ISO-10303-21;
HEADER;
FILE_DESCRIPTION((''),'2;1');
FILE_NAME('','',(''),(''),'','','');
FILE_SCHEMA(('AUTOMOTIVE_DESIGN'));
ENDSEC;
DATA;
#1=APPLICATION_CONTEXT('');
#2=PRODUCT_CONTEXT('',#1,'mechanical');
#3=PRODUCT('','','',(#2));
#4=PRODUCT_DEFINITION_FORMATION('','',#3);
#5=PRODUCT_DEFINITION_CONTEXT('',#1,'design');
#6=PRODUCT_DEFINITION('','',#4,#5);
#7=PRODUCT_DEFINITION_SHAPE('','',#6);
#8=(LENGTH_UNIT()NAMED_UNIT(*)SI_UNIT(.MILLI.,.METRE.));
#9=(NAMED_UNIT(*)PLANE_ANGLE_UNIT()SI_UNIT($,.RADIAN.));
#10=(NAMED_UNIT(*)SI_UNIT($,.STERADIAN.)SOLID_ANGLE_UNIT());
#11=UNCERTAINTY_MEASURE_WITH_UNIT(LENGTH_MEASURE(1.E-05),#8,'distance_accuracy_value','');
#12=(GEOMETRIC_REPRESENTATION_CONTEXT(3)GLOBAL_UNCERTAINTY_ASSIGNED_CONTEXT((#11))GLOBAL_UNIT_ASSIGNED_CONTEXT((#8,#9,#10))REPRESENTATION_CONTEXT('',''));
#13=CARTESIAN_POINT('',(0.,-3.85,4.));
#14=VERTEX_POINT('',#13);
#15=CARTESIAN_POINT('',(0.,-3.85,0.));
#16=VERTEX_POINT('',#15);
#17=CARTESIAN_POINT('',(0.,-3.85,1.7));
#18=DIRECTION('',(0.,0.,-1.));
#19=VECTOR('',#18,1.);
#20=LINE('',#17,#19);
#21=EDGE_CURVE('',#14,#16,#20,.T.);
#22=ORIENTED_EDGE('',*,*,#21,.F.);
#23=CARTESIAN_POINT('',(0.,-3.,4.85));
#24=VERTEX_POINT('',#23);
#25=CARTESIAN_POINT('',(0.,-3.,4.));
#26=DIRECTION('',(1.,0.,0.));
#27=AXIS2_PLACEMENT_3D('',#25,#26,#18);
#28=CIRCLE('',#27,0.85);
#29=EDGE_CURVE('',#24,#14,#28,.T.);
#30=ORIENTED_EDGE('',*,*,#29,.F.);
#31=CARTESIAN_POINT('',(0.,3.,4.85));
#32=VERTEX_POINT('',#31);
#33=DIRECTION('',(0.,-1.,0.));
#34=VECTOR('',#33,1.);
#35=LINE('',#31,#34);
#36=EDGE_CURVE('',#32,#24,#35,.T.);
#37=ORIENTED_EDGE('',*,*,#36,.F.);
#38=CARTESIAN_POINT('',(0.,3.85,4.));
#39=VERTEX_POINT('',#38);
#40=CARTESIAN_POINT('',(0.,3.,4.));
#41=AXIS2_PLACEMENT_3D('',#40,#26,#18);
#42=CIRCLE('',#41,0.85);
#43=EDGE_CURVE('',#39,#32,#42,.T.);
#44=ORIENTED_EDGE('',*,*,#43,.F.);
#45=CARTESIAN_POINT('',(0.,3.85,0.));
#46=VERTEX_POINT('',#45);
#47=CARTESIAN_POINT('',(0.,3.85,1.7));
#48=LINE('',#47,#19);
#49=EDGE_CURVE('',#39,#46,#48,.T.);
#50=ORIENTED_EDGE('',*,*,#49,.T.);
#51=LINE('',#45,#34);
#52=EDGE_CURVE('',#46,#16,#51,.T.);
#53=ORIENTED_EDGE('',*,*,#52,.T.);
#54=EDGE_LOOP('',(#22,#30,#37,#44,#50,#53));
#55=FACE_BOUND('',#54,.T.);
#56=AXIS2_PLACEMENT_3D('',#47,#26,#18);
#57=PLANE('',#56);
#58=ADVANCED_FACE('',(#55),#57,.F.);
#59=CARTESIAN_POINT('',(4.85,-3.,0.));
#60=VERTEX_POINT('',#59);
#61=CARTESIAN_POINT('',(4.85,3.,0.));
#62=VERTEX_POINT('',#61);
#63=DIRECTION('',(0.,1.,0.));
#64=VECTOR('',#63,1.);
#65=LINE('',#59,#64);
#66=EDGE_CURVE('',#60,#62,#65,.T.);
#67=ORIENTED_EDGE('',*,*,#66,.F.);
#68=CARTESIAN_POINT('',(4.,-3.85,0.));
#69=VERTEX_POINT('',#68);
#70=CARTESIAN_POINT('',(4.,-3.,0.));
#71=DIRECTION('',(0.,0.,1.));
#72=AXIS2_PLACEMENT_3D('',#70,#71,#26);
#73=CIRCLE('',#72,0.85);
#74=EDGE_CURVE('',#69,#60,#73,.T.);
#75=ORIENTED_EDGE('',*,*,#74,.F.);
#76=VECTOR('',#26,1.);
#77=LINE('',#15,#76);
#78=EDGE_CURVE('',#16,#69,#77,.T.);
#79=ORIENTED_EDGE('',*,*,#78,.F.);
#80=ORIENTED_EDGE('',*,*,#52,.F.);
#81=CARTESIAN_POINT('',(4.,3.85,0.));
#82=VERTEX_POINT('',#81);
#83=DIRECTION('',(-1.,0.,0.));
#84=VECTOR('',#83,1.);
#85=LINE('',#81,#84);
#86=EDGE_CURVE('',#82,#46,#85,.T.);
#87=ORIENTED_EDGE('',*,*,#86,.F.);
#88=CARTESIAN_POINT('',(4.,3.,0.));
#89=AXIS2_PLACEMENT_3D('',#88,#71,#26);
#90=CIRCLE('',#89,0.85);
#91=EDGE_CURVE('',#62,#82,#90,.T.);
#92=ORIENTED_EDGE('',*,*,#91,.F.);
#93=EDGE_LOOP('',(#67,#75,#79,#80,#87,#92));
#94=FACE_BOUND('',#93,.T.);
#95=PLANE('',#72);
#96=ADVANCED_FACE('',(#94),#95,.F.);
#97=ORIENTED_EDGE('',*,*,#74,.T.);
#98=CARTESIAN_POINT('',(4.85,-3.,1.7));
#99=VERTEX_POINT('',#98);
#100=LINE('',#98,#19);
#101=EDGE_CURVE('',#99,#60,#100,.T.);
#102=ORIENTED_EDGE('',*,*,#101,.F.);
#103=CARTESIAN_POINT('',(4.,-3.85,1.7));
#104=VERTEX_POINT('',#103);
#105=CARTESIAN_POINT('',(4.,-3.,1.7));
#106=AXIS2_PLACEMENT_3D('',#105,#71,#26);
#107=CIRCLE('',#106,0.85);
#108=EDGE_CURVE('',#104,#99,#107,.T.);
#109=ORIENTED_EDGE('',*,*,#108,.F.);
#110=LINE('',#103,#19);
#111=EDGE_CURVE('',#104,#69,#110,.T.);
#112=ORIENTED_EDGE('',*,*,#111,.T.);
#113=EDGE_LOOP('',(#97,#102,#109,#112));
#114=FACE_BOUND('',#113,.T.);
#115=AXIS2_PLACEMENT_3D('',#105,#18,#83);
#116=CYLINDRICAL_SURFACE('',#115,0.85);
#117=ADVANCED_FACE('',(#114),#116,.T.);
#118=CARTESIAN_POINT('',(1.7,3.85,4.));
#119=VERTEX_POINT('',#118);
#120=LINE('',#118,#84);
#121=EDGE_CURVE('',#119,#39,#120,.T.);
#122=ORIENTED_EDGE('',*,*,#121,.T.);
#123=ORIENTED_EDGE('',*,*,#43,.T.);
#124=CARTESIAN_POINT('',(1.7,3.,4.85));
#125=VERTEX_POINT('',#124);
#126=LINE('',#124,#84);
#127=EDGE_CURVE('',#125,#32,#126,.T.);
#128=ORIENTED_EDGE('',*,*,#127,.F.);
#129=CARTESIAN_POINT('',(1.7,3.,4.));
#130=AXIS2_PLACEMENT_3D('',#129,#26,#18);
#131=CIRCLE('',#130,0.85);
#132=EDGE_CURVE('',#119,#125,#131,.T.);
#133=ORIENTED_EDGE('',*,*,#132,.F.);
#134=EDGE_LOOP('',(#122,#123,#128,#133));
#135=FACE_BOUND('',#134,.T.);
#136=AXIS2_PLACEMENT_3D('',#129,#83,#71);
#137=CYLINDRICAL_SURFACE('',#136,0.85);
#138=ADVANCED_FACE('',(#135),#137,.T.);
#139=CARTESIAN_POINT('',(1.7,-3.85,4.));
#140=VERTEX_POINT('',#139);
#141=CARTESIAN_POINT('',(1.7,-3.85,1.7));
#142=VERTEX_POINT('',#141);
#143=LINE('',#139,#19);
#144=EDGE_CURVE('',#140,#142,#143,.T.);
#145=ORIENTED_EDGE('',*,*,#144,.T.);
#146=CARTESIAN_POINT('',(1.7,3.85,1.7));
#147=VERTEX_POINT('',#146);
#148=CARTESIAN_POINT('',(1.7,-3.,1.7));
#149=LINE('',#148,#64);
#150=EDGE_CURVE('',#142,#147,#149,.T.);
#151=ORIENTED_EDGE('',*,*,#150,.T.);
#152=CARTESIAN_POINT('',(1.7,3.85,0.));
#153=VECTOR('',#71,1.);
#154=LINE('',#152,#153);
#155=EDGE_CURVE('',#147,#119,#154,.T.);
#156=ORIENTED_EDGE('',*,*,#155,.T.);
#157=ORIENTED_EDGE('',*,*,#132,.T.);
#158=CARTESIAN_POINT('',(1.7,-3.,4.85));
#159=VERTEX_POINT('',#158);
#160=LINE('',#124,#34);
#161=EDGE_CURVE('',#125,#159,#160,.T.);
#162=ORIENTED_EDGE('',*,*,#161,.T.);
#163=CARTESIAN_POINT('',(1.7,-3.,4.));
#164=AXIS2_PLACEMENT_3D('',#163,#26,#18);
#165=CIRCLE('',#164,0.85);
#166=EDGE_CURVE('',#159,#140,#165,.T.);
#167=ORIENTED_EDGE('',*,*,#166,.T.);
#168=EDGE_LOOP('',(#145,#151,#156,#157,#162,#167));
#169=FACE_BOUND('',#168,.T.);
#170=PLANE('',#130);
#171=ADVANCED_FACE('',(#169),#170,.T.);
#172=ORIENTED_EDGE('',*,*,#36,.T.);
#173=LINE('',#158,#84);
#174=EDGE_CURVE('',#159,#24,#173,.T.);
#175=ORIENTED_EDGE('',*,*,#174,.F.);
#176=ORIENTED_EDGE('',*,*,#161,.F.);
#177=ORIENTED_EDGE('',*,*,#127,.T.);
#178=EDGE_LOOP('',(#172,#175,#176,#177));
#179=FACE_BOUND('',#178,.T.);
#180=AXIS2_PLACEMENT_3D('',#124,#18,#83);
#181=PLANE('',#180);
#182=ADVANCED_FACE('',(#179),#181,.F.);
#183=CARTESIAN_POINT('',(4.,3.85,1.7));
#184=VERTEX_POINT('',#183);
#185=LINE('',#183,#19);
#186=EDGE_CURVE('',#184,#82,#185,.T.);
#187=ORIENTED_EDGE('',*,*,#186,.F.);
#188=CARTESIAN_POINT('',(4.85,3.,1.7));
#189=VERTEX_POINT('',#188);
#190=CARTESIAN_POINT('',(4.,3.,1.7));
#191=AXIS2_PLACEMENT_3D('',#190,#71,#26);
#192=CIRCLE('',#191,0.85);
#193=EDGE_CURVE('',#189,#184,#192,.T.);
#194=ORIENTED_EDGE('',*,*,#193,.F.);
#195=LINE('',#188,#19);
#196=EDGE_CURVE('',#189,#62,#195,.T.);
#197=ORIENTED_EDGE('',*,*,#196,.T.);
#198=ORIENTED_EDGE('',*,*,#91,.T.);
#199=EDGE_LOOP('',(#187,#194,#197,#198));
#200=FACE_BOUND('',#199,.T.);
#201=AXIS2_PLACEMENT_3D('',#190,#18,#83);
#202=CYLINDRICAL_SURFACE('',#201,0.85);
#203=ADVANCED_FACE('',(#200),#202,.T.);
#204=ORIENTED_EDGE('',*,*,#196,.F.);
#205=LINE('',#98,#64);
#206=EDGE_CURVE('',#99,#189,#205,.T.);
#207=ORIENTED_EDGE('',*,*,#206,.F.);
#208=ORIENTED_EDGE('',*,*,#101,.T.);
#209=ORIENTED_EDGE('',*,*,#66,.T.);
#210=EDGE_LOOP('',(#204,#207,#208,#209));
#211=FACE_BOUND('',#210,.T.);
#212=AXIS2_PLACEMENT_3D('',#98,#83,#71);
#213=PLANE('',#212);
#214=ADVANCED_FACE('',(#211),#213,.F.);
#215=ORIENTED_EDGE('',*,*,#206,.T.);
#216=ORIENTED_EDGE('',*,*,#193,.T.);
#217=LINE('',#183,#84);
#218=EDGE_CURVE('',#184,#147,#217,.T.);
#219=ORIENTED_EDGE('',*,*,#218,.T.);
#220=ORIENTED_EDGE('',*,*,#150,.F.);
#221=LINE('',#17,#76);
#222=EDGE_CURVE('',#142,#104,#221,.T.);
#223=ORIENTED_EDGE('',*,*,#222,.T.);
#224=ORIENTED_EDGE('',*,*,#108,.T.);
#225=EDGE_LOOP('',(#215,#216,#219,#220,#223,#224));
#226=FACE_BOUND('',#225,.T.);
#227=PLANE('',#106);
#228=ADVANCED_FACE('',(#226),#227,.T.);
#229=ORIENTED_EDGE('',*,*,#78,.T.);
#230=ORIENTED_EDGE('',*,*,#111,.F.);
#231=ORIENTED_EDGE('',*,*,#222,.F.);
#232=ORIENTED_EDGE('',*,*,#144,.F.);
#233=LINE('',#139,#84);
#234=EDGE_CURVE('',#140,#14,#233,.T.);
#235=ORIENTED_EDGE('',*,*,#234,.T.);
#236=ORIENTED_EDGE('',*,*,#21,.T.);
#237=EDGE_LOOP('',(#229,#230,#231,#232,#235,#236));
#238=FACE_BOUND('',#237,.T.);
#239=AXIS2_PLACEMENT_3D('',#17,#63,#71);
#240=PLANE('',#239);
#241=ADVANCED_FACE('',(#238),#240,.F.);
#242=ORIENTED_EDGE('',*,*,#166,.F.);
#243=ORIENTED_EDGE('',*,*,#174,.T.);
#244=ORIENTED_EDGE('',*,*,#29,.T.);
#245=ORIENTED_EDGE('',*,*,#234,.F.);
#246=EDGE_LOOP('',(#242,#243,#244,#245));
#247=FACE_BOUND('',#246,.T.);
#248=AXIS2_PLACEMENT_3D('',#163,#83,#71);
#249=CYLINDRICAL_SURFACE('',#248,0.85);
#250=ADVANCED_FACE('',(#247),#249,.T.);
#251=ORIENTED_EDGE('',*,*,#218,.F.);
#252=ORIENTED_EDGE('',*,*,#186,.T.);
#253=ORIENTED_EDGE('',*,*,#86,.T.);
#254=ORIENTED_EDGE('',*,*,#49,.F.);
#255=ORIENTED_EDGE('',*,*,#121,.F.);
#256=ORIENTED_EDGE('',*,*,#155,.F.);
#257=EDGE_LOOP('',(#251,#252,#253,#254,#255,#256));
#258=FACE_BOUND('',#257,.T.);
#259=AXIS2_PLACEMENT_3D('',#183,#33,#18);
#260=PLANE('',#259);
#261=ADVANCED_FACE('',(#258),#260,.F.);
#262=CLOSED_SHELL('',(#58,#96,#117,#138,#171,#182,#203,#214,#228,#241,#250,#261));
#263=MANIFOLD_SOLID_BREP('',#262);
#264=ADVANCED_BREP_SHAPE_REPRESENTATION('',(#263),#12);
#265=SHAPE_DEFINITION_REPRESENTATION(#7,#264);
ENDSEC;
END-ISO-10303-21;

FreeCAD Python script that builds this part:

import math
import FreeCAD as App
import Part
import Sketcher

V = App.Vector
Q = App.Units.Quantity

doc = App.newDocument("Part")
body = doc.addObject("PartDesign::Body", "Body")

# Sketch on XY plane
sketch1 = doc.addObject("Sketcher::SketchObject", "Sketch")
body.addObject(sketch1)
sketch1.AttachmentSupport = (doc.XY_Plane, [""])
sketch1.MapMode = "FlatFace"
sketch1.addGeometry(Part.LineSegment(V(0, -3.9, 0), V(4, -3.9, 0)), False)
sketch1.addGeometry(Part.ArcOfCircle(Part.Circle(V(4, -3, 0), V(0, 0, 1), 0.8), math.radians(-90), math.radians(0)), False)
sketch1.addGeometry(Part.LineSegment(V(4.8, -3, 0), V(4.8, 3, 0)), False)
sketch1.addGeometry(Part.ArcOfCircle(Part.Circle(V(4, 3, 0), V(0, 0, 1), 0.8), math.radians(0), math.radians(90)), False)
sketch1.addGeometry(Part.LineSegment(V(4, 3.9, 0), V(0, 3.9, 0)), False)
sketch1.addGeometry(Part.LineSegment(V(0, 3.9, 0), V(0, -3.9, 0)), False)
sketch1.addConstraint(Sketcher.Constraint("Tangent", 0, 2, 1, 1))
sketch1.addConstraint(Sketcher.Constraint("Tangent", 1, 2, 2, 1))
sketch1.addConstraint(Sketcher.Constraint("Tangent", 2, 2, 3, 1))
sketch1.addConstraint(Sketcher.Constraint("Tangent", 3, 2, 4, 1))
sketch1.addConstraint(Sketcher.Constraint("Coincident", 4, 2, 5, 1))
sketch1.addConstraint(Sketcher.Constraint("Coincident", 5, 2, 0, 1))
sketch1.addConstraint(Sketcher.Constraint("Horizontal", 0))
sketch1.addConstraint(Sketcher.Constraint("Vertical", 2))
sketch1.addConstraint(Sketcher.Constraint("Horizontal", 4))
sketch1.addConstraint(Sketcher.Constraint("Vertical", 5))
sketch1.addConstraint(Sketcher.Constraint("Equal", 1, 3))
sketch1.addConstraint(Sketcher.Constraint("Symmetric", 4, 2, 5, 2, -1, 1))
sketch1.addConstraint(Sketcher.Constraint("DistanceX", 0, 1, 0, 2, Q("4 mm")))
sketch1.addConstraint(Sketcher.Constraint("DistanceY", 2, 1, 2, 2, Q("6 mm")))
sketch1.addConstraint(Sketcher.Constraint("Radius", 1, Q("0.85 mm")))
pad1 = doc.addObject("PartDesign::Pad", "Pad")
body.addObject(pad1)
pad1.Profile = sketch1
pad1.Length = 1.7

# Sketch on YZ plane
sketch2 = doc.addObject("Sketcher::SketchObject", "Sketch001")
body.addObject(sketch2)
sketch2.AttachmentSupport = (doc.YZ_Plane, [""])
sketch2.MapMode = "FlatFace"
sketch2.addGeometry(Part.LineSegment(V(-3.9, 0, 0), V(3.9, 0, 0)), False)
sketch2.addGeometry(Part.LineSegment(V(3.9, 0, 0), V(3.9, 4, 0)), False)
sketch2.addGeometry(Part.ArcOfCircle(Part.Circle(V(3, 4, 0), V(0, 0, 1), 0.8), math.radians(0), math.radians(90)), False)
sketch2.addGeometry(Part.LineSegment(V(3, 4.8, 0), V(-3, 4.8, 0)), False)
sketch2.addGeometry(Part.ArcOfCircle(Part.Circle(V(-3, 4, 0), V(0, 0, 1), 0.8), math.radians(90), math.radians(180)), False)
sketch2.addGeometry(Part.LineSegment(V(-3.9, 4, 0), V(-3.9, 0, 0)), False)
sketch2.addConstraint(Sketcher.Constraint("Coincident", 0, 2, 1, 1))
sketch2.addConstraint(Sketcher.Constraint("Tangent", 1, 2, 2, 1))
sketch2.addConstraint(Sketcher.Constraint("Tangent", 2, 2, 3, 1))
sketch2.addConstraint(Sketcher.Constraint("Tangent", 3, 2, 4, 1))
sketch2.addConstraint(Sketcher.Constraint("Tangent", 4, 2, 5, 1))
sketch2.addConstraint(Sketcher.Constraint("Coincident", 5, 2, 0, 1))
sketch2.addConstraint(Sketcher.Constraint("Horizontal", 0))
sketch2.addConstraint(Sketcher.Constraint("Vertical", 1))
sketch2.addConstraint(Sketcher.Constraint("Horizontal", 3))
sketch2.addConstraint(Sketcher.Constraint("Vertical", 5))
sketch2.addConstraint(Sketcher.Constraint("Equal", 2, 4))
sketch2.addConstraint(Sketcher.Constraint("Symmetric", 0, 2, 5, 2, -1, 1))
sketch2.addConstraint(Sketcher.Constraint("DistanceX", 3, 2, 3, 1, Q("6 mm")))
sketch2.addConstraint(Sketcher.Constraint("DistanceY", 1, 1, 1, 2, Q("4 mm")))
sketch2.addConstraint(Sketcher.Constraint("Radius", 2, Q("0.85 mm")))
pad2 = doc.addObject("PartDesign::Pad", "Pad001")
body.addObject(pad2)
pad2.Profile = sketch2
pad2.Length = 1.7

doc.recompute()
